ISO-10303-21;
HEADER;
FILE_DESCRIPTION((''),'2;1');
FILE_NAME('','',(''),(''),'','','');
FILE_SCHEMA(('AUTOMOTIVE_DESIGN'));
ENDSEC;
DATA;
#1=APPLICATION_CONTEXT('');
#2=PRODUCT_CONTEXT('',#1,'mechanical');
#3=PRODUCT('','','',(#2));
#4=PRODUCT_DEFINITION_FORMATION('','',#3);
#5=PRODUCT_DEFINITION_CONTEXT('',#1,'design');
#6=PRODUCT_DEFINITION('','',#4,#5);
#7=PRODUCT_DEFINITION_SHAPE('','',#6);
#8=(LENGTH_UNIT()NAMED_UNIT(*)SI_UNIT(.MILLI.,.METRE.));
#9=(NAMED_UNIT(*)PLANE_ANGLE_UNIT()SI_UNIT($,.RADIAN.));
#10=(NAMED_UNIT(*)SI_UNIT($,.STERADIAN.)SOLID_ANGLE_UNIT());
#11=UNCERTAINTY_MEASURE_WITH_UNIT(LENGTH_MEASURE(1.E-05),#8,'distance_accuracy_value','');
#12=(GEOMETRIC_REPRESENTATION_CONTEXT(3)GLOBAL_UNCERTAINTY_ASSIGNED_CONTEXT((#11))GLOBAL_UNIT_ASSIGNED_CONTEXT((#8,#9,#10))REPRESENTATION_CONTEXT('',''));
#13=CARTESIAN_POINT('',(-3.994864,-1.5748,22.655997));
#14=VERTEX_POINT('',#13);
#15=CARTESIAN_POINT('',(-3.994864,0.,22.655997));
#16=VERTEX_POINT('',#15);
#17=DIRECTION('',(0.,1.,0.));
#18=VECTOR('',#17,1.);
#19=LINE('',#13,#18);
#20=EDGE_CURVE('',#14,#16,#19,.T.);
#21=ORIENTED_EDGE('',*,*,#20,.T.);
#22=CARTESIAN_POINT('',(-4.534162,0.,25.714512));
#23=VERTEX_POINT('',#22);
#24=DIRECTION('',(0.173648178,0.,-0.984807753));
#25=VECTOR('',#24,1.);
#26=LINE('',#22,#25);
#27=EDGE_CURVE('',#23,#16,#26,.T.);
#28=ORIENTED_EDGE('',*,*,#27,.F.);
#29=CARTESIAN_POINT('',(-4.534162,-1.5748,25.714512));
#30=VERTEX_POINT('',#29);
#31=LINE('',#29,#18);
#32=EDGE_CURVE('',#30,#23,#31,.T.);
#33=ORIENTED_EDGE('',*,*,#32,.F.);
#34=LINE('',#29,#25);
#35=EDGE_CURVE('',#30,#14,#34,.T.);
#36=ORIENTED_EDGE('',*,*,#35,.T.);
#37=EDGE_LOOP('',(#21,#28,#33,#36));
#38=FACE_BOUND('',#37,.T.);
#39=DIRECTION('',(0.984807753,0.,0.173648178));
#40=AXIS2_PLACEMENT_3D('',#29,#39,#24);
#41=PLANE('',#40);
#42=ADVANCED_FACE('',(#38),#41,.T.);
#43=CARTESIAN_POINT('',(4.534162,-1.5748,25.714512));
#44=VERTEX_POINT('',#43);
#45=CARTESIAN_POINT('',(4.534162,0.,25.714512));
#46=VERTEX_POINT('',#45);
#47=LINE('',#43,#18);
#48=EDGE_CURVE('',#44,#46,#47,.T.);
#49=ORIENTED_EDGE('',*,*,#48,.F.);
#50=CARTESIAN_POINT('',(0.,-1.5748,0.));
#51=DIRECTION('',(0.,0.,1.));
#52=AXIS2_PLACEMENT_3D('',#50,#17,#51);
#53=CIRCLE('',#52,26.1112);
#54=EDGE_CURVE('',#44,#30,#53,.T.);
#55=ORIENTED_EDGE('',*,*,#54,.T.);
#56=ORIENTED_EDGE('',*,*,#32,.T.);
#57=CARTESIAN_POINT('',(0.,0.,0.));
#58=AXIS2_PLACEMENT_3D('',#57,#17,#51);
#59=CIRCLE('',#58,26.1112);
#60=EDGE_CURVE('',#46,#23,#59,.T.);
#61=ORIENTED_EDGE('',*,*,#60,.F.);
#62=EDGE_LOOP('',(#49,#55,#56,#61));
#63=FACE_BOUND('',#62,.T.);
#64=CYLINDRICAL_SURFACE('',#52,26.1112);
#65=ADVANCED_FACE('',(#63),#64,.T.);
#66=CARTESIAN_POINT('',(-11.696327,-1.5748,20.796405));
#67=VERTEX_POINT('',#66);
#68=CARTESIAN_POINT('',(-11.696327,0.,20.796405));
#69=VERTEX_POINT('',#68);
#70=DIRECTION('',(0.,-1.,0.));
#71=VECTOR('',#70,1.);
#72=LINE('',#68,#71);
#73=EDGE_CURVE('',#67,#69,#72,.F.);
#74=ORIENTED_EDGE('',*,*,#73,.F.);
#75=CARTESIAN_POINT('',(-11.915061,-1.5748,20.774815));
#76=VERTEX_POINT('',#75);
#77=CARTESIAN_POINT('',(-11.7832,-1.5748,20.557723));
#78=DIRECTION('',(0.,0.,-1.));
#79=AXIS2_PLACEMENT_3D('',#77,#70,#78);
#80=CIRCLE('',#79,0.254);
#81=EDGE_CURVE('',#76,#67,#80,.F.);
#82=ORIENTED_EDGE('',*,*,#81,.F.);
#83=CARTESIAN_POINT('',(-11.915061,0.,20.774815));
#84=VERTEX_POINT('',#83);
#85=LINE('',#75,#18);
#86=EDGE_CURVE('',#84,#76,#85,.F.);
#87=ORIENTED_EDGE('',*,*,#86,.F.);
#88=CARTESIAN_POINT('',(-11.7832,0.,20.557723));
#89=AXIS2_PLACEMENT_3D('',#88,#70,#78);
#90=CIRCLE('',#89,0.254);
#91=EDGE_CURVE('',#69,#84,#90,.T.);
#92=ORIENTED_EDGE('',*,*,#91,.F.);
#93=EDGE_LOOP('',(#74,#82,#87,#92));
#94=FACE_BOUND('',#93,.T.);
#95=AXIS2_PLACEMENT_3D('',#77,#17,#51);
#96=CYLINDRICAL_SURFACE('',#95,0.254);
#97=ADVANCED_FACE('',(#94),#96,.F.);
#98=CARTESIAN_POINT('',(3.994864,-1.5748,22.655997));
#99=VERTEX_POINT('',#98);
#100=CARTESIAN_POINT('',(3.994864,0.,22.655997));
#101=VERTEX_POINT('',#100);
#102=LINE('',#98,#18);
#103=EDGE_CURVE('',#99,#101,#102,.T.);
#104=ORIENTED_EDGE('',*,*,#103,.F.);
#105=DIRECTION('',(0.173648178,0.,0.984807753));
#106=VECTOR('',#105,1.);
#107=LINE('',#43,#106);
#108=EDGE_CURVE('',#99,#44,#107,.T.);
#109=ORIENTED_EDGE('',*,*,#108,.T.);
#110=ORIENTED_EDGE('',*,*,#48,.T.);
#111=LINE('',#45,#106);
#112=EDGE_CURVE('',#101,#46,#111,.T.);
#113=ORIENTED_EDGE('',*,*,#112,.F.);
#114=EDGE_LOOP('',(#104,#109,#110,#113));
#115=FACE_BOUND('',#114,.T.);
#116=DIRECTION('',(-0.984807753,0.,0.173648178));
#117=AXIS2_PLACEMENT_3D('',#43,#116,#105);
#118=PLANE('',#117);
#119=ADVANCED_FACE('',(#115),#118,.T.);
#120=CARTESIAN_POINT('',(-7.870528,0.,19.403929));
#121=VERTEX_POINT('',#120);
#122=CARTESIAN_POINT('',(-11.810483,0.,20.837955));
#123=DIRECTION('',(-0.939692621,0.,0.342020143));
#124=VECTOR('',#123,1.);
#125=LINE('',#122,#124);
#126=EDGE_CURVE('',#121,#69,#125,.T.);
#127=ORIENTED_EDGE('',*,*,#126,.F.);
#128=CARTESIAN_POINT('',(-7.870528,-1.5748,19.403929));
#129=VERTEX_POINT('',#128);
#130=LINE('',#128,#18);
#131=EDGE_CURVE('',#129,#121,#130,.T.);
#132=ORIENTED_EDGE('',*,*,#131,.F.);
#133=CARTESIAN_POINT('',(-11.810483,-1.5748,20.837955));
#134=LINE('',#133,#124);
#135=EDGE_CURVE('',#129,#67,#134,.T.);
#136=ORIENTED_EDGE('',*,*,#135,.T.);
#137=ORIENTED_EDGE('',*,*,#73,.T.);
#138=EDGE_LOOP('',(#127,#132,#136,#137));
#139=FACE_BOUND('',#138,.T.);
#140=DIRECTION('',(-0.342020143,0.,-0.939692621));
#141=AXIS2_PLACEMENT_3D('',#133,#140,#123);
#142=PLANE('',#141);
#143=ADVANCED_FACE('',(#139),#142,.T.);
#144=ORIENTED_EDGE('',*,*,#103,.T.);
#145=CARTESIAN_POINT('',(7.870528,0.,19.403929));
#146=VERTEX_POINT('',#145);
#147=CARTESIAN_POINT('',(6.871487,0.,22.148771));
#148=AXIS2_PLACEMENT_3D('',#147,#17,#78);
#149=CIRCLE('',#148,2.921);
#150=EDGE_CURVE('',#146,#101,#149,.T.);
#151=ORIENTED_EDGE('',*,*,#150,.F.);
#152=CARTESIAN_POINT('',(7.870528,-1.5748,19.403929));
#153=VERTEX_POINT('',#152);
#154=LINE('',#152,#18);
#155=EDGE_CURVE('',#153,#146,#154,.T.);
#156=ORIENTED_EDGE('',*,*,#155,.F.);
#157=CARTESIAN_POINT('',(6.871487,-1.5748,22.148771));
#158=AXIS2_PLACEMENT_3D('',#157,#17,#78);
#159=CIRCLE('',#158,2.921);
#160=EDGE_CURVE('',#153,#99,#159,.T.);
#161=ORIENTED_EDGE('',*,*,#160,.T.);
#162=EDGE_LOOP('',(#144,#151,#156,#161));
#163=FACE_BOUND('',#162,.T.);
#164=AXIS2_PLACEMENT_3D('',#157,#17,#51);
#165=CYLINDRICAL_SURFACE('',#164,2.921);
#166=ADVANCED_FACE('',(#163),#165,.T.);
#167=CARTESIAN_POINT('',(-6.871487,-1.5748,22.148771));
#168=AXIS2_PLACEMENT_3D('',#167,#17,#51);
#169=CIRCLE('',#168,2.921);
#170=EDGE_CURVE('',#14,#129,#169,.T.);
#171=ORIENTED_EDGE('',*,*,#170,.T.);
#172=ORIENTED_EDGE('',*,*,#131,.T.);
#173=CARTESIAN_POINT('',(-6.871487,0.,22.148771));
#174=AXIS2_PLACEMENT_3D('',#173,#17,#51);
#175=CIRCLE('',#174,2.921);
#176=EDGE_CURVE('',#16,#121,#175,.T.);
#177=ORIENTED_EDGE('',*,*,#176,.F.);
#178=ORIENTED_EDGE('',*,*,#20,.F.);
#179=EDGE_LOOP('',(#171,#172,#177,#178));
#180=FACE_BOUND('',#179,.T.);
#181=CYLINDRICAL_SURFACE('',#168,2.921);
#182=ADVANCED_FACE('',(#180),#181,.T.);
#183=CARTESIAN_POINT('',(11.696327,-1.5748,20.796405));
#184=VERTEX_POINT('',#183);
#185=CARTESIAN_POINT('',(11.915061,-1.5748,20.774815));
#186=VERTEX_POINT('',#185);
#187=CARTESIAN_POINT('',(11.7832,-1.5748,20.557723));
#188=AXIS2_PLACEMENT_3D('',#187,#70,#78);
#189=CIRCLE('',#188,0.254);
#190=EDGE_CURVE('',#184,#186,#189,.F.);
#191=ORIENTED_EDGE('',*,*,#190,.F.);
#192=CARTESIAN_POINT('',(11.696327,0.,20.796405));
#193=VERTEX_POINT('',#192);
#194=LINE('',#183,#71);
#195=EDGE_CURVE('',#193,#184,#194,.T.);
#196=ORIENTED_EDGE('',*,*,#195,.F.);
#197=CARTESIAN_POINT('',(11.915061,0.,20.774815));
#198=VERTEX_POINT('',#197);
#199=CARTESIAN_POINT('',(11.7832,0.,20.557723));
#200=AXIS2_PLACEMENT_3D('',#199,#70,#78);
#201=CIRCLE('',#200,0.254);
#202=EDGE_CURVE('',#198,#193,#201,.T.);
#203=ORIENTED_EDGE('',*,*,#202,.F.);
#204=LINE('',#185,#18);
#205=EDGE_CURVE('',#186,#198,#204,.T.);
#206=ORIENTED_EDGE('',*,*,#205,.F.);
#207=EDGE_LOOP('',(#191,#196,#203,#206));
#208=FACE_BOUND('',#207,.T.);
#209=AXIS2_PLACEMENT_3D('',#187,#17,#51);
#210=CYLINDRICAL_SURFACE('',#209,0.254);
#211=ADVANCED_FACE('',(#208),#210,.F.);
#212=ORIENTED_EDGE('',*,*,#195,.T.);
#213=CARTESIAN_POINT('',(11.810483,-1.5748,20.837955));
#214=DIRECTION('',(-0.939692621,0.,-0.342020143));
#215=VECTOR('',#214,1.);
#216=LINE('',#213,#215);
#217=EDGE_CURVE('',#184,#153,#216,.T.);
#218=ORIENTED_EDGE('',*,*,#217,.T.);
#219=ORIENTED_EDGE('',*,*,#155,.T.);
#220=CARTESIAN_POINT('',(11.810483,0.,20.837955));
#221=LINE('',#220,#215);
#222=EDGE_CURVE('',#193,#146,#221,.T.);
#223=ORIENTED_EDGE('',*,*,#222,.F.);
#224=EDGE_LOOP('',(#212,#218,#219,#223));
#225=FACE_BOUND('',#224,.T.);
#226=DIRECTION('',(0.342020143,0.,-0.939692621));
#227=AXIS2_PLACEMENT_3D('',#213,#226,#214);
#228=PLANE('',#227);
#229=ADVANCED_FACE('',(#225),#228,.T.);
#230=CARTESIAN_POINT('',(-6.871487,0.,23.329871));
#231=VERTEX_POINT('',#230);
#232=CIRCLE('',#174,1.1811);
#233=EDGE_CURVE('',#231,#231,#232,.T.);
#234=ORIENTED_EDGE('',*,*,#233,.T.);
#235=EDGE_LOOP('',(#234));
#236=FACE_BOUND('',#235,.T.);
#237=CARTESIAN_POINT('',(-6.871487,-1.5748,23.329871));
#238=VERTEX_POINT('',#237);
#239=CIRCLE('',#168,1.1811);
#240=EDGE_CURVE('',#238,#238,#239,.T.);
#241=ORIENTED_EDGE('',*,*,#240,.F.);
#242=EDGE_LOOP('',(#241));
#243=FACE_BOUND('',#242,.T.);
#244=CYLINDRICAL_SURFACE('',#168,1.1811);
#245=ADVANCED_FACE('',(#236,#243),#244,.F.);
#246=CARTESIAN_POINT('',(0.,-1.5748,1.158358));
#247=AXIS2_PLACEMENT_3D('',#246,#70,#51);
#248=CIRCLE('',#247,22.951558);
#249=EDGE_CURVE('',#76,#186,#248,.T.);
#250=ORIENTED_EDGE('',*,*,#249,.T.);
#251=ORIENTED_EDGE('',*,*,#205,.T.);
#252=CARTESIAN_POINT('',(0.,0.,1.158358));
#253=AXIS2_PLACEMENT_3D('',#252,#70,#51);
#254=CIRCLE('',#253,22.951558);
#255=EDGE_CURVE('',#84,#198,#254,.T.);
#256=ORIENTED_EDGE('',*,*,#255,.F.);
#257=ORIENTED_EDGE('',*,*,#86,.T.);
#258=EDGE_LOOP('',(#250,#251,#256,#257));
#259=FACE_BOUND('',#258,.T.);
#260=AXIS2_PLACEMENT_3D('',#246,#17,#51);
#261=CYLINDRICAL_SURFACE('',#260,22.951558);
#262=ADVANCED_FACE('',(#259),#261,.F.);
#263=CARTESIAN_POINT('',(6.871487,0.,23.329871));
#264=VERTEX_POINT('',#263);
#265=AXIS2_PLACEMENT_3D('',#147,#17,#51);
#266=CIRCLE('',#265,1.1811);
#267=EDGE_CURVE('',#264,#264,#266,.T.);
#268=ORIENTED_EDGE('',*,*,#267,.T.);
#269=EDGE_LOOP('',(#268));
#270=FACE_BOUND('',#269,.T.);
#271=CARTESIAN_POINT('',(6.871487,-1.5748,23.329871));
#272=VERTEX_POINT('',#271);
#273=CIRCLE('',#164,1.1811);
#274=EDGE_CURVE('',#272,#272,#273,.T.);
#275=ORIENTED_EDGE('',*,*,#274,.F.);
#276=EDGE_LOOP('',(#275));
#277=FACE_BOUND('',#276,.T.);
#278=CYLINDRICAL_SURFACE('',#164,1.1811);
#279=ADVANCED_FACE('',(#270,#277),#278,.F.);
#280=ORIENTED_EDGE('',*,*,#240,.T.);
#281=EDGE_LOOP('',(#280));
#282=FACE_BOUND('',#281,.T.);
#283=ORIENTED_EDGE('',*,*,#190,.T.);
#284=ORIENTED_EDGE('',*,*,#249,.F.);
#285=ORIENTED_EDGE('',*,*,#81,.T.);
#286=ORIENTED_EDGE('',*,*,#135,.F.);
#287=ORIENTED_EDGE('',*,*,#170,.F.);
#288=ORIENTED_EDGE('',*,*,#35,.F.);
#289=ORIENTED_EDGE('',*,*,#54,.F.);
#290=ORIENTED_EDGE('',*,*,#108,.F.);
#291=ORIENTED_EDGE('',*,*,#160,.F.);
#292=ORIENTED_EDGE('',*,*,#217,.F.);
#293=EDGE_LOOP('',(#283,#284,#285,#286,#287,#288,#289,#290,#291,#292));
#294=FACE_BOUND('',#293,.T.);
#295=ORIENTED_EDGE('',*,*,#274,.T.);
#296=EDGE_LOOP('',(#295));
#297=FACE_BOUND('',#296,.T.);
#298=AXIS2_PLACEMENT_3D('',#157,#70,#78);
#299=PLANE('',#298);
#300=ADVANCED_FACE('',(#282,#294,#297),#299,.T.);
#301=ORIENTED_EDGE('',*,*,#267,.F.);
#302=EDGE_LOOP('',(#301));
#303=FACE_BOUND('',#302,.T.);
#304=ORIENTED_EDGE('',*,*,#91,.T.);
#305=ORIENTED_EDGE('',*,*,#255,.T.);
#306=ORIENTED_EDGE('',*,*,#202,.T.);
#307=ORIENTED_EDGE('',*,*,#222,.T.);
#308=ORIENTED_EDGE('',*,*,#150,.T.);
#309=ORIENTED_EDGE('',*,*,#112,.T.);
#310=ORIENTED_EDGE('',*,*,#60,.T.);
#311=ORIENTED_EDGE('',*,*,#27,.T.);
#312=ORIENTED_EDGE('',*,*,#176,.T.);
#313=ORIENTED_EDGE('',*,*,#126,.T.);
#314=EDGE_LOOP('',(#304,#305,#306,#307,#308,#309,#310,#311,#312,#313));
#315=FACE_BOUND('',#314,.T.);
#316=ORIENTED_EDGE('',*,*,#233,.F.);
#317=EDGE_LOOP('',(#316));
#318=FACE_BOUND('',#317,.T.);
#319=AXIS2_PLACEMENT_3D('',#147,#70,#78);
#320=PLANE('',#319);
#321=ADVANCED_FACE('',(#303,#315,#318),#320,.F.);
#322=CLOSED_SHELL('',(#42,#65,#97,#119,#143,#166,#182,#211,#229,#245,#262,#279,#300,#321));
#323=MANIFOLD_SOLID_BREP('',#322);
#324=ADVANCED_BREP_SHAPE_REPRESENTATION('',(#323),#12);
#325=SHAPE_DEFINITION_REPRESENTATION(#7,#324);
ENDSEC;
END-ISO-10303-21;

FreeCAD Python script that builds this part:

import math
import FreeCAD as App
import Part
import Sketcher

V = App.Vector
Q = App.Units.Quantity


def edges_at(feature, points):
    """Names of the edges that pass closest to the given points."""
    edges = feature.Shape.Edges
    near = lambda p: min(range(len(edges)), key=lambda i: edges[i].distToShape(Part.Vertex(*p))[0])
    return sorted({f"Edge{near(p) + 1}" for p in points})

doc = App.newDocument("Part")
body = doc.addObject("PartDesign::Body", "Body")

sketch1 = doc.addObject("Sketcher::SketchObject", "Sketch")
body.addObject(sketch1)
sketch1.AttachmentSupport = (doc.XZ_Plane, [""])
sketch1.MapMode = "FlatFace"
sketch1.addGeometry(Part.LineSegment(V(3.994864, 22.655997, 0), V(4.534162, 25.714512, 0)), False)
sketch1.addGeometry(Part.ArcOfCircle(Part.Circle(V(0, 0, 0), V(0, 0, 1), 26.1112), math.radians(100), math.radians(440)), False)
sketch1.addGeometry(Part.LineSegment(V(-4.534162, 25.714512, 0), V(-3.994864, 22.655997, 0)), False)
sketch1.addGeometry(Part.ArcOfCircle(Part.Circle(V(-6.871487, 22.148771, 0), V(0, 0, 1), 2.921), math.radians(-110), math.radians(10)), False)
sketch1.addGeometry(Part.LineSegment(V(-7.870528, 19.403929, 0), V(-11.810483, 20.837955, 0)), False)
sketch1.addGeometry(Part.ArcOfCircle(Part.Circle(V(0, 1.158358, 0), V(0, 0, 1), 22.951558), math.radians(120.96959), math.radians(419.03041)), False)
sketch1.addGeometry(Part.LineSegment(V(11.810483, 20.837955, 0), V(7.870528, 19.403929, 0)), False)
sketch1.addGeometry(Part.ArcOfCircle(Part.Circle(V(6.871487, 22.148771, 0), V(0, 0, 1), 2.921), math.radians(170), math.radians(290)), False)
sketch1.addGeometry(Part.Circle(V(6.871487, 22.148771, 0), V(0, 0, 1), 1.1811), False)
sketch1.addGeometry(Part.Circle(V(-6.871487, 22.148771, 0), V(0, 0, 1), 1.1811), False)
sketch1.addConstraint(Sketcher.Constraint("Coincident", 0, 2, 1, 2))
sketch1.addConstraint(Sketcher.Constraint("Coincident", 1, 1, 2, 1))
sketch1.addConstraint(Sketcher.Constraint("Tangent", 2, 2, 3, 2))
sketch1.addConstraint(Sketcher.Constraint("Tangent", 3, 1, 4, 1))
sketch1.addConstraint(Sketcher.Constraint("Coincident", 4, 2, 5, 1))
sketch1.addConstraint(Sketcher.Constraint("Coincident", 5, 2, 6, 1))
sketch1.addConstraint(Sketcher.Constraint("Tangent", 6, 2, 7, 2))
sketch1.addConstraint(Sketcher.Constraint("Tangent", 7, 1, 0, 1))
sketch1.addConstraint(Sketcher.Constraint("Coincident", 1, 3, -1, 1))
sketch1.addConstraint(Sketcher.Constraint("Coincident", 8, 3, 7, 3))
sketch1.addConstraint(Sketcher.Constraint("Coincident", 9, 3, 3, 3))
sketch1.addConstraint(Sketcher.Constraint("Equal", 3, 7))
sketch1.addConstraint(Sketcher.Constraint("Equal", 8, 9))
sketch1.addConstraint(Sketcher.Constraint("Symmetric", 3, 3, 7, 3, -2))
sketch1.addConstraint(Sketcher.Constraint("Symmetric", 4, 2, 5, 2, -2))
sketch1.addConstraint(Sketcher.Constraint("Horizontal", 0, 2, 1, 1))
sketch1.addConstraint(Sketcher.Constraint("Diameter", 8, Q("0.093 in")))
sketch1.addConstraint(Sketcher.Constraint("Angle", 0, Q("80 deg")))
sketch1.addConstraint(Sketcher.Constraint("Angle", 4, Q("160 deg")))
sketch1.addConstraint(Sketcher.Constraint("Radius", 1, Q("1.028 in")))
sketch1.addConstraint(Sketcher.Constraint("Radius", 3, Q("0.115 in")))
sketch1.addConstraint(Sketcher.Constraint("Radius", 5, 22.951558))
sketch1.addConstraint(Sketcher.Constraint("DistanceX", 1, 1, 2, 2, 0.539299))
sketch1.addConstraint(Sketcher.Constraint("DistanceY", -1, 1, 3, 3, 22.148771))
sketch1.addConstraint(Sketcher.Constraint("DistanceY", -1, 1, 5, 3, 1.158358))
pad1 = doc.addObject("PartDesign::Pad", "Pad")
body.addObject(pad1)
pad1.Profile = sketch1
pad1.Length = Q("0.062 in")
doc.recompute()

fillet = doc.addObject("PartDesign::Fillet", "Fillet")
body.addObject(fillet)
fillet.Base = (pad1, edges_at(pad1, [(11.81, -0.787, 20.838), (-11.81, -0.787, 20.838)]))
fillet.Radius = Q("0.01 in")

doc.recompute()
